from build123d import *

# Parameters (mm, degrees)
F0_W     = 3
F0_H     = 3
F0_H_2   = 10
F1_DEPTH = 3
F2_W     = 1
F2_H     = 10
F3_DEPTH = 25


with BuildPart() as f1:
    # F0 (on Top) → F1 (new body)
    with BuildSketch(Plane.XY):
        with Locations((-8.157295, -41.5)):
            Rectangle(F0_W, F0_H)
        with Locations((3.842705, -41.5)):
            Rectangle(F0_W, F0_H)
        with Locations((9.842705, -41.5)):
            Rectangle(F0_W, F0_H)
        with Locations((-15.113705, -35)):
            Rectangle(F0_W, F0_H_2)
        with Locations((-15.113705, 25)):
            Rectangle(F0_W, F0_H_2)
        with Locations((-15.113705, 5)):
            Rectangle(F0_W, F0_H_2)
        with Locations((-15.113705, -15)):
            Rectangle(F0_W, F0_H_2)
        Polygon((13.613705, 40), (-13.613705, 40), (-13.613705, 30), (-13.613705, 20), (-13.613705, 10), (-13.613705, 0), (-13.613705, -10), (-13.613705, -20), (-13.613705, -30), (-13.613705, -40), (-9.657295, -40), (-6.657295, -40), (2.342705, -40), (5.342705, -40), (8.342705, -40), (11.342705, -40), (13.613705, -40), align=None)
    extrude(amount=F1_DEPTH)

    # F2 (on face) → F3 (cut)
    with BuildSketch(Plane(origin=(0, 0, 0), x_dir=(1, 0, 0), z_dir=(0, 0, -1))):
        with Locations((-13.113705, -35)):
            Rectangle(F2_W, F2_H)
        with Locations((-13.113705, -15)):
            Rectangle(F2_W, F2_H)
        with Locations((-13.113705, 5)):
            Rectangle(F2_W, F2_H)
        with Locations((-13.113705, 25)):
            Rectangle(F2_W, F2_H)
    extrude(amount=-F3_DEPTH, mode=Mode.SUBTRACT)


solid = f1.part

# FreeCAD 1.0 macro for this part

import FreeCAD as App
import Part
import Sketcher

V = App.Vector
Q = App.Units.Quantity


def add_polygon(sketch, points):
    """Adds a closed chain of lines whose ends are joined by coincident constraints."""
    first, n = sketch.GeometryCount, len(points)
    for a, b in zip(points, points[1:] + points[:1]):
        sketch.addGeometry(Part.LineSegment(App.Vector(*a, 0), App.Vector(*b, 0)), False)
    for i in range(n):
        sketch.addConstraint(Sketcher.Constraint("Coincident", first + i, 2, first + (i + 1) % n, 1))

doc = App.newDocument("Part")
body = doc.addObject("PartDesign::Body", "Body")

# Sketch on XY plane
sketch1 = body.newObject("Sketcher::SketchObject", "Sketch")
sketch1.AttachmentSupport = (doc.getObject("XY_Plane"), [""])
sketch1.MapMode = "FlatFace"
add_polygon(sketch1, [(-9.657295, -40), (-9.657295, -43), (-6.657295, -43), (-6.657295, -40), (2.342705, -40), (2.342705, -43), (5.342705, -43), (5.342705, -40), (8.342705, -40), (8.342705, -43), (11.342705, -43), (11.342705, -40), (13.613705, -40), (13.613705, 40), (-13.613705, 40), (-13.613705, 30), (-16.613705, 30), (-16.613705, 20), (-13.613705, 20), (-13.613705, 10), (-16.613705, 10), (-16.613705, 0), (-13.613705, 0), (-13.613705, -10), (-16.613705, -10), (-16.613705, -20), (-13.613705, -20), (-13.613705, -30), (-16.613705, -30), (-16.613705, -40)])  # lines 0-29
sketch1.addConstraint([
    Sketcher.Constraint("Vertical", 0),
    Sketcher.Constraint("Horizontal", 1),
    Sketcher.Constraint("Vertical", 2),
    Sketcher.Constraint("Horizontal", 3),
    Sketcher.Constraint("Vertical", 4),
    Sketcher.Constraint("Horizontal", 5),
    Sketcher.Constraint("Vertical", 6),
    Sketcher.Constraint("Horizontal", 7),
    Sketcher.Constraint("Vertical", 8),
    Sketcher.Constraint("Horizontal", 9),
    Sketcher.Constraint("Vertical", 10),
    Sketcher.Constraint("Horizontal", 11),
    Sketcher.Constraint("Vertical", 12),
    Sketcher.Constraint("Horizontal", 13),
    Sketcher.Constraint("Vertical", 14),
    Sketcher.Constraint("Horizontal", 15),
    Sketcher.Constraint("Vertical", 16),
    Sketcher.Constraint("Horizontal", 17),
    Sketcher.Constraint("Vertical", 18),
    Sketcher.Constraint("Horizontal", 19),
    Sketcher.Constraint("Vertical", 20),
    Sketcher.Constraint("Horizontal", 21),
    Sketcher.Constraint("Vertical", 22),
    Sketcher.Constraint("Horizontal", 23),
    Sketcher.Constraint("Vertical", 24),
    Sketcher.Constraint("Horizontal", 25),
    Sketcher.Constraint("Vertical", 26),
    Sketcher.Constraint("Horizontal", 27),
    Sketcher.Constraint("Vertical", 28),
    Sketcher.Constraint("Horizontal", 29),
    Sketcher.Constraint("Symmetric", 11, 2, 13, 2, -1, 1),
    Sketcher.Constraint("Symmetric", 18, 2, 22, 2, -1),
    Sketcher.Constraint("Symmetric", 16, 2, 24, 2, -1),
    Sketcher.Constraint("Symmetric", 14, 2, 26, 2, -1),
    Sketcher.Constraint("PointOnObject", 20, 2, -1),
    Sketcher.Constraint("Horizontal", 1, 2, 4, 2),
    Sketcher.Constraint("Horizontal", 3, 2, 6, 2),
    Sketcher.Constraint("Horizontal", 5, 2, 8, 2),
    Sketcher.Constraint("Horizontal", 7, 2, 10, 2),
    Sketcher.Constraint("Horizontal", 11, 2, 28, 2),
    Sketcher.Constraint("Vertical", 14, 2, 17, 2),
    Sketcher.Constraint("Vertical", 16, 2, 19, 2),
    Sketcher.Constraint("Vertical", 24, 2, 27, 2),
    Sketcher.Constraint("Equal", 1, 5),
    Sketcher.Constraint("Equal", 5, 7),
    Sketcher.Constraint("Equal", 7, 9),
    Sketcher.Constraint("Equal", 9, 15),
    Sketcher.Constraint("Equal", 27, 0),
    Sketcher.Constraint("Equal", 14, 16),
    Sketcher.Constraint("Equal", 16, 18),
    Sketcher.Constraint("Equal", 18, 20),
    Sketcher.Constraint("DistanceX", 1, 1, 1, 2, Q("3 mm")),
    Sketcher.Constraint("DistanceX", 3, 1, 3, 2, Q("9 mm")),
    Sketcher.Constraint("DistanceY", 12, 1, 12, 2, Q("80 mm")),
    Sketcher.Constraint("DistanceX", 11, 1, 11, 2, Q("2.271 mm")),
    Sketcher.Constraint("DistanceX", 13, 2, 13, 1, Q("27.22741 mm")),
])
pad1 = body.newObject("PartDesign::Pad", "Pad")
pad1.Profile = sketch1
pad1.Length = 3

# Sketch on XY plane
sketch2 = body.newObject("Sketcher::SketchObject", "Sketch001")
sketch2.AttachmentSupport = (doc.getObject("XY_Plane"), [""])
sketch2.MapMode = "FlatFace"
add_polygon(sketch2, [(-13.613705, 30), (-13.613705, 40), (-12.613705, 40), (-12.613705, 30)])  # lines 0-3
add_polygon(sketch2, [(-13.613705, 10), (-13.613705, 20), (-12.613705, 20), (-12.613705, 10)])  # lines 4-7
add_polygon(sketch2, [(-13.613705, -10), (-13.613705, 0), (-12.613705, 0), (-12.613705, -10)])  # lines 8-11
add_polygon(sketch2, [(-13.613705, -30), (-13.613705, -20), (-12.613705, -20), (-12.613705, -30)])  # lines 12-15
sketch2.addConstraint([
    Sketcher.Constraint("Vertical", 0),
    Sketcher.Constraint("Horizontal", 1),
    Sketcher.Constraint("Vertical", 2),
    Sketcher.Constraint("Horizontal", 3),
    Sketcher.Constraint("Vertical", 4),
    Sketcher.Constraint("Horizontal", 5),
    Sketcher.Constraint("Vertical", 6),
    Sketcher.Constraint("Horizontal", 7),
    Sketcher.Constraint("Vertical", 8),
    Sketcher.Constraint("Horizontal", 9),
    Sketcher.Constraint("Vertical", 10),
    Sketcher.Constraint("Horizontal", 11),
    Sketcher.Constraint("Vertical", 12),
    Sketcher.Constraint("Horizontal", 13),
    Sketcher.Constraint("Vertical", 14),
    Sketcher.Constraint("Horizontal", 15),
    Sketcher.Constraint("Symmetric", 6, 2, 10, 2, -1),
    Sketcher.Constraint("Symmetric", 4, 2, 12, 2, -1),
    Sketcher.Constraint("Symmetric", 2, 2, 14, 2, -1),
    Sketcher.Constraint("PointOnObject", 8, 2, -1),
    Sketcher.Constraint("Vertical", 3, 2, 4, 2),
    Sketcher.Constraint("Vertical", 2, 2, 5, 2),
    Sketcher.Constraint("Vertical", 7, 2, 8, 2),
    Sketcher.Constraint("Equal", 2, 4),
    Sketcher.Constraint("Equal", 6, 8),
    Sketcher.Constraint("Equal", 10, 12),
    Sketcher.Constraint("DistanceX", 1, 1, 1, 2, Q("1 mm")),
    Sketcher.Constraint("DistanceY", 0, 1, 0, 2, Q("10 mm")),
    Sketcher.Constraint("DistanceX", 0, 2, -1, 1, Q("13.613705 mm")),
])
pocket1 = body.newObject("PartDesign::Pocket", "Pocket")
pocket1.Profile = sketch2
pocket1.Length = 25
pocket1.Reversed = True

doc.recompute()
